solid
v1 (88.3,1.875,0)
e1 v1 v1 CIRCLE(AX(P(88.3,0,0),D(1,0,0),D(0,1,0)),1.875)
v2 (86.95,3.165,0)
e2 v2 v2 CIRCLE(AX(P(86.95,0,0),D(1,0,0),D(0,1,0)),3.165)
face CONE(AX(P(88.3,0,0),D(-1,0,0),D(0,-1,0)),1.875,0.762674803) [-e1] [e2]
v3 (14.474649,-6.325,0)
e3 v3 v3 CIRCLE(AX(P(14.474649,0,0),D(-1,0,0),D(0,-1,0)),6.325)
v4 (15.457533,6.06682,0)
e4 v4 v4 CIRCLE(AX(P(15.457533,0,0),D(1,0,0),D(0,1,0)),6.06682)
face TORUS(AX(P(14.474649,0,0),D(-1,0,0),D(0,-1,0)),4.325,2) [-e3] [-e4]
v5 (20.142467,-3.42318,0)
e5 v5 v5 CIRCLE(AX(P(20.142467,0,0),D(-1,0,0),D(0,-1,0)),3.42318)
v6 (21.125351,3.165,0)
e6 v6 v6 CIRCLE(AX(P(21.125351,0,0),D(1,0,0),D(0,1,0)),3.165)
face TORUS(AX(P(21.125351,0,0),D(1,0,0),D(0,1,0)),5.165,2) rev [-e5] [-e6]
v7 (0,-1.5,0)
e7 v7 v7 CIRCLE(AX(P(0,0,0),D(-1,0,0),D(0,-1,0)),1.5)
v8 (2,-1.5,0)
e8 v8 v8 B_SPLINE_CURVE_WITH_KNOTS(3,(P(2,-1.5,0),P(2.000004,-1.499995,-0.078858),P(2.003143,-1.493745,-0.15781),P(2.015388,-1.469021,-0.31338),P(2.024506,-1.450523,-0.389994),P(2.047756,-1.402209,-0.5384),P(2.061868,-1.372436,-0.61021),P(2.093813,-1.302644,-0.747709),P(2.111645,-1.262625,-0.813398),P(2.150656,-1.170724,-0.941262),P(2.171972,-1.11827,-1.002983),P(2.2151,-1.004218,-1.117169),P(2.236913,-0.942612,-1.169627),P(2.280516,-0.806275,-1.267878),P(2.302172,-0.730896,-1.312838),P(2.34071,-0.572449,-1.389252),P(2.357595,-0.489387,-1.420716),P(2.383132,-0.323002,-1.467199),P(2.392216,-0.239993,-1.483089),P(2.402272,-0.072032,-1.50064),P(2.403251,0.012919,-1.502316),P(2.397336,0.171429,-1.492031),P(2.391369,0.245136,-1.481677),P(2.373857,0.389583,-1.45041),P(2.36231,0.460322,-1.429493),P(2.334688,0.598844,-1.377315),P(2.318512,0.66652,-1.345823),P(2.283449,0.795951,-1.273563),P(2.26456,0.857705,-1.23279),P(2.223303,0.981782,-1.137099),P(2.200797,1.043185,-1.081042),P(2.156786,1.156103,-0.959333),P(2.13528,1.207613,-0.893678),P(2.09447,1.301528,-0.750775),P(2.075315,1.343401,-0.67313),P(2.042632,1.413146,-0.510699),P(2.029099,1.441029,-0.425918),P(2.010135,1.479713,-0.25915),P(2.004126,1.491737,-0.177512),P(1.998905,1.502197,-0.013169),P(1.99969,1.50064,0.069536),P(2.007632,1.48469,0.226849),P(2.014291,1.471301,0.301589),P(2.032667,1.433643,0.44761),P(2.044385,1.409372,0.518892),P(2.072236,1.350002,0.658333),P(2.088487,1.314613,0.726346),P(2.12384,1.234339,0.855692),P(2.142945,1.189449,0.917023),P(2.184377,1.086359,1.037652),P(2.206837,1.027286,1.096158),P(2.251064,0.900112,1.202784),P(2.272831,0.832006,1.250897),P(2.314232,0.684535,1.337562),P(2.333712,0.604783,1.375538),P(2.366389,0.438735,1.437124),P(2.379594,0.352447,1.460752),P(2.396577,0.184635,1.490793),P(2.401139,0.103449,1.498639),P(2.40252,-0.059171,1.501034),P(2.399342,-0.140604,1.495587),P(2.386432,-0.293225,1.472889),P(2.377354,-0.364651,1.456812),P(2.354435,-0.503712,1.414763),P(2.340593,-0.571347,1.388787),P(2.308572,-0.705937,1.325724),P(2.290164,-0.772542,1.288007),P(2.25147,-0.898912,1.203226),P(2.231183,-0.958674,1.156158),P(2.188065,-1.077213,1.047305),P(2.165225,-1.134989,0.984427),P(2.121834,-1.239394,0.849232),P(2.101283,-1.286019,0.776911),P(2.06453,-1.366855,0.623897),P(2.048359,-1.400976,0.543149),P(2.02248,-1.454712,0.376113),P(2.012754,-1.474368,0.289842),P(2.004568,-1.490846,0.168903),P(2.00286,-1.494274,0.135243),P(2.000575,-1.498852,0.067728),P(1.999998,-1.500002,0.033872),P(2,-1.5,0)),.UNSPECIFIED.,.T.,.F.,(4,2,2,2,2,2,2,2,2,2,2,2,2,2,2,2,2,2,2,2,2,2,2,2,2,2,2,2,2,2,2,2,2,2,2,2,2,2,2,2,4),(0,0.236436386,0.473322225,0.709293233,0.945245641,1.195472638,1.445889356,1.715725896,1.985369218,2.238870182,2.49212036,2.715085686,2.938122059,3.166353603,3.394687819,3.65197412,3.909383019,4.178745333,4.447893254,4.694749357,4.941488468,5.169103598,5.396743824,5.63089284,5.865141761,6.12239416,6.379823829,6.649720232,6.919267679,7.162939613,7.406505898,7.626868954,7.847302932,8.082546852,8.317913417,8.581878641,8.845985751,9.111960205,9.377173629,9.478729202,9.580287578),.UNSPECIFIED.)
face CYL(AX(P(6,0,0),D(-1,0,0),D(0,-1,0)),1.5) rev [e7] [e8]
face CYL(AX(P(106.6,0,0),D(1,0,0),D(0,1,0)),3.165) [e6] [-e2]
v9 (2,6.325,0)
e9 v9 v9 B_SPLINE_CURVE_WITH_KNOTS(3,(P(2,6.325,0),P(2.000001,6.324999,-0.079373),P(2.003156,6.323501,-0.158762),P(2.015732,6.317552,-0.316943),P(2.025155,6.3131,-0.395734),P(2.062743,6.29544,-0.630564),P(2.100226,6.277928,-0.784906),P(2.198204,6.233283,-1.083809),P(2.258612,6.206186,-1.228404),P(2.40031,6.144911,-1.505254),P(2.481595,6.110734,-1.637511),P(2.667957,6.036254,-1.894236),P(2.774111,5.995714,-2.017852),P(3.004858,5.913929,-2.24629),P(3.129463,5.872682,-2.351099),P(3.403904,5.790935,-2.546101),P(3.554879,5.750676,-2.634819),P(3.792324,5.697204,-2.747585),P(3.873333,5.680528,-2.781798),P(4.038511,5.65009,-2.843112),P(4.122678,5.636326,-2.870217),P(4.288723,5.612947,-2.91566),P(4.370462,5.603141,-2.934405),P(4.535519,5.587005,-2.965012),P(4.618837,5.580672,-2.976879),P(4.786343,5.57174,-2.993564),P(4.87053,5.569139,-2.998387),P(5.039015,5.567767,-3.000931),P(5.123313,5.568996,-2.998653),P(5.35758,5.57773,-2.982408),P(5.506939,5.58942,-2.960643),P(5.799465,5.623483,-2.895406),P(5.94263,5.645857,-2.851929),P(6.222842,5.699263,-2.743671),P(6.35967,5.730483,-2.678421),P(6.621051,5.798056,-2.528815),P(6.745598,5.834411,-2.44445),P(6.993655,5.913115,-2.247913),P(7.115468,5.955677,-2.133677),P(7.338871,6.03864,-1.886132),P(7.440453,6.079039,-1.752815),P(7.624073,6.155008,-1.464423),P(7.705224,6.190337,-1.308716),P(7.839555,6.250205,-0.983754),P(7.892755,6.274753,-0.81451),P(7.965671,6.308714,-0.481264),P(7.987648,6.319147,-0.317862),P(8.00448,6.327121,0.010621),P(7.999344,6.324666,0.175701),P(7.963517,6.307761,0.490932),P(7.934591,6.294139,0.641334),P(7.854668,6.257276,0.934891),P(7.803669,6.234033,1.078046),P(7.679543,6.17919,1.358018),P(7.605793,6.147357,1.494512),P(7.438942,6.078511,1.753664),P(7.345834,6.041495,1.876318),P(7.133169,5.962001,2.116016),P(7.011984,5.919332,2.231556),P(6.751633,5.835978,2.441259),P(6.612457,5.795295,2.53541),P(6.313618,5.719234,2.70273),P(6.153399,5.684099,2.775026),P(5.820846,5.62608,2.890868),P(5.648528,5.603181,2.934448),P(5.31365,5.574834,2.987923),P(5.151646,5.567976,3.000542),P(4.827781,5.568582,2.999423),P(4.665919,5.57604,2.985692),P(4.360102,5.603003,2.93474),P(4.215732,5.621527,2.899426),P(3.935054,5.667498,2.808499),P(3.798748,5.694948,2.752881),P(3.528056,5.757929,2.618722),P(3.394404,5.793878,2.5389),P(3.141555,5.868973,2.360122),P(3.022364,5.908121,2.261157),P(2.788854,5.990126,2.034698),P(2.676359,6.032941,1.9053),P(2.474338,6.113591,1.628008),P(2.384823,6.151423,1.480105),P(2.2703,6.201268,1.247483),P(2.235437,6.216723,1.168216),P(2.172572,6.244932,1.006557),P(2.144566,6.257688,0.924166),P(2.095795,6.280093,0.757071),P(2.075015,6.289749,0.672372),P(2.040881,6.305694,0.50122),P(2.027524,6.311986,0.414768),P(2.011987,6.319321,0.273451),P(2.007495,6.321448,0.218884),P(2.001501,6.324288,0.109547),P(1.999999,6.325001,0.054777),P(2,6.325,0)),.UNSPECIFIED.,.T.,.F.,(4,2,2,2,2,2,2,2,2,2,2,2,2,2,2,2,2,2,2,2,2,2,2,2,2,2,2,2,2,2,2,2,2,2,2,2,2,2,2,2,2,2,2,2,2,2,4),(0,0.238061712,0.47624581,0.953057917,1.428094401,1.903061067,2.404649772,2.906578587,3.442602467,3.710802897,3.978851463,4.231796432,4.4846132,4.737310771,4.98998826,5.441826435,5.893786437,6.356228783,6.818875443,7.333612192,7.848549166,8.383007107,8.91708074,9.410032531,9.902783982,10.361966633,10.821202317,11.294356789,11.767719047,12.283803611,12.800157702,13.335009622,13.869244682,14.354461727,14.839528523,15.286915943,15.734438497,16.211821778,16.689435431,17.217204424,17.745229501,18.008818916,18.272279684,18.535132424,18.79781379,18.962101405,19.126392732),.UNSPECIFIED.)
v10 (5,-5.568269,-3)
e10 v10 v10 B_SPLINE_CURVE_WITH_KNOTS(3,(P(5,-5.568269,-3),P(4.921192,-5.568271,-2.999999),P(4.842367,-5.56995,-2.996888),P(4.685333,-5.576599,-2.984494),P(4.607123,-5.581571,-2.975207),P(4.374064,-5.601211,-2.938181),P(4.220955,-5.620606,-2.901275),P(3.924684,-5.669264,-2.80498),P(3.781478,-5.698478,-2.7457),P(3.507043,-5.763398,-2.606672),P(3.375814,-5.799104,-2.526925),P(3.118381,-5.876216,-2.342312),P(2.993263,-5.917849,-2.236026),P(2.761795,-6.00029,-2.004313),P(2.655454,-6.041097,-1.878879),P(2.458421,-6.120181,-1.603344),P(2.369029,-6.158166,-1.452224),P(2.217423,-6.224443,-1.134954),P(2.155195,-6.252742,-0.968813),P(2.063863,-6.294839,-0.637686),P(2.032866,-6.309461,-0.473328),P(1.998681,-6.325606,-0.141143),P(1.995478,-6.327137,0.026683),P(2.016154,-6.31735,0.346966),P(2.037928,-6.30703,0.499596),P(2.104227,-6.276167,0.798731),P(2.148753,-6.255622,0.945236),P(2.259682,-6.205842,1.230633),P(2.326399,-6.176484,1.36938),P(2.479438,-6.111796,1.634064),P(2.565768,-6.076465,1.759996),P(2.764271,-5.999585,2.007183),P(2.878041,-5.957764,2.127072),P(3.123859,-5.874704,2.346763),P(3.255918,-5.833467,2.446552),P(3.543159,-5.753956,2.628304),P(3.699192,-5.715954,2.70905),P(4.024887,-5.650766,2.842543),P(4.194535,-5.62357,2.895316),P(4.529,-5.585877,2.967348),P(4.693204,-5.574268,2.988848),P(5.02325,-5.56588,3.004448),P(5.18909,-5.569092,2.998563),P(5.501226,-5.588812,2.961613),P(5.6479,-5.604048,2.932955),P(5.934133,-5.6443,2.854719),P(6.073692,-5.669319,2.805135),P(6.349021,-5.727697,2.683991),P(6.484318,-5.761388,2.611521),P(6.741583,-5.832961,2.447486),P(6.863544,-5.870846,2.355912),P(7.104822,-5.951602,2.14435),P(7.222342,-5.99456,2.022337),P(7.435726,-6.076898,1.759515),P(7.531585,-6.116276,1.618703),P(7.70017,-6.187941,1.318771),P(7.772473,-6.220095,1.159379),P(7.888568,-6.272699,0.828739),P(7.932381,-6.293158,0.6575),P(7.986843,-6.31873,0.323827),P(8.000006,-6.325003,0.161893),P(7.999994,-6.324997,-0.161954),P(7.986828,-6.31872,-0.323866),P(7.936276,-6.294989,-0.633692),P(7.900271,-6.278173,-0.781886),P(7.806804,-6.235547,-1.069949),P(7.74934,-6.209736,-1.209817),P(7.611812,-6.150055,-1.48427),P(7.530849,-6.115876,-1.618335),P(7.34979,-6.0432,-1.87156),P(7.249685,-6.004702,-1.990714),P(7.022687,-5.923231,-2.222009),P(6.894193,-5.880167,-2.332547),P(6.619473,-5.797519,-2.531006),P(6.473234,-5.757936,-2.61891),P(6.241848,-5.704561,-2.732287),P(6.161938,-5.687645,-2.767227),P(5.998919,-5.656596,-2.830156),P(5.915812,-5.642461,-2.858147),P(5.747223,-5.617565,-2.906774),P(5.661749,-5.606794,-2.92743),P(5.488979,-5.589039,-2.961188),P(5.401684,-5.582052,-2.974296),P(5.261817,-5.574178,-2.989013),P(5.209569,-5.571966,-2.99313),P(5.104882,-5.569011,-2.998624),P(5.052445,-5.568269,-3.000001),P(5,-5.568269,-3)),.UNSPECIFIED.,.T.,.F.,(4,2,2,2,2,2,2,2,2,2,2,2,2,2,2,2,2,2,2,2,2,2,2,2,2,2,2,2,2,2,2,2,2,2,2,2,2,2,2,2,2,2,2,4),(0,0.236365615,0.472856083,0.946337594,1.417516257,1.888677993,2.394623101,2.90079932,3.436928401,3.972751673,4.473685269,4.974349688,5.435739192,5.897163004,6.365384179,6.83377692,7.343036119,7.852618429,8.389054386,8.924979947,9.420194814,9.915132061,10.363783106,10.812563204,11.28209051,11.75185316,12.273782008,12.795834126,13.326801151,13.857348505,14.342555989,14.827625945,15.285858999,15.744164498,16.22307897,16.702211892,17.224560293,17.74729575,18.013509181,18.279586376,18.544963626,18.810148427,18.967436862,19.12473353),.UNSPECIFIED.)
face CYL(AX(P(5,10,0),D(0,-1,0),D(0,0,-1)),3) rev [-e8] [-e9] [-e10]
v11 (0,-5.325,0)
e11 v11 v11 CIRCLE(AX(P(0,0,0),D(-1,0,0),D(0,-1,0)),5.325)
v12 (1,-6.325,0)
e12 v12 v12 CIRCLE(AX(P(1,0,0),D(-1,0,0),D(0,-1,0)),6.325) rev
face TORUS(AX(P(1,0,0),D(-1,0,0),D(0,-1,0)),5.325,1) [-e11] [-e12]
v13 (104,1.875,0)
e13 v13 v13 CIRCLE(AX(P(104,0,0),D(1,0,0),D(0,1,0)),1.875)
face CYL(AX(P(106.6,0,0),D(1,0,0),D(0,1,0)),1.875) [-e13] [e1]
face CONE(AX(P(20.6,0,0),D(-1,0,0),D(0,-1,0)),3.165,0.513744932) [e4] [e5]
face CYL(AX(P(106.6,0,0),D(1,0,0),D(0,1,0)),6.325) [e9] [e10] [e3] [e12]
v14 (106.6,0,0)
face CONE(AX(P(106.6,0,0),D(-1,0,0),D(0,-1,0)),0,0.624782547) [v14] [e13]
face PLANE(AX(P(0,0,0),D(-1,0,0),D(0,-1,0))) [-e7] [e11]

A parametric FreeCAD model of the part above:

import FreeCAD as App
import Part
import Sketcher

V = App.Vector
Q = App.Units.Quantity


def edges_at(feature, points):
    """Names of the edges that pass closest to the given points."""
    edges = feature.Shape.Edges
    near = lambda p: min(range(len(edges)), key=lambda i: edges[i].distToShape(Part.Vertex(*p))[0])
    return sorted({f"Edge{near(p) + 1}" for p in points})

doc = App.newDocument("Part")
body = doc.addObject("PartDesign::Body", "Body")

# Sketch on XY plane
sketch1 = body.newObject("Sketcher::SketchObject", "Sketch")
sketch1.AttachmentSupport = (doc.getObject("XY_Plane"), [""])
sketch1.MapMode = "FlatFace"
sketch1.addGeometry([
    Part.LineSegment(V(0, 6.3, 0), V(0, 0, 0)),  # 0
    Part.LineSegment(V(0, 0, 0), V(106.6, 0, 0)),  # 1
    Part.LineSegment(V(106.6, 0, 0), V(104, 1.9, 0)),  # 2
    Part.LineSegment(V(104, 1.9, 0), V(88.3, 1.9, 0)),  # 3
    Part.LineSegment(V(88.3, 1.9, 0), V(87, 3.2, 0)),  # 4
    Part.LineSegment(V(87, 3.2, 0), V(20.6, 3.2, 0)),  # 5
    Part.LineSegment(V(20.6, 3.2, 0), V(15, 6.3, 0)),  # 6
    Part.LineSegment(V(15, 6.3, 0), V(0, 6.3, 0)),  # 7
], False)
sketch1.addConstraint([
    Sketcher.Constraint("Coincident", 0, 2, 1, 1),
    Sketcher.Constraint("Coincident", 1, 2, 2, 1),
    Sketcher.Constraint("Coincident", 2, 2, 3, 1),
    Sketcher.Constraint("Coincident", 3, 2, 4, 1),
    Sketcher.Constraint("Coincident", 4, 2, 5, 1),
    Sketcher.Constraint("Coincident", 5, 2, 6, 1),
    Sketcher.Constraint("Coincident", 6, 2, 7, 1),
    Sketcher.Constraint("Coincident", 7, 2, 0, 1),
    Sketcher.Constraint("Vertical", 0),
    Sketcher.Constraint("Horizontal", 1),
    Sketcher.Constraint("Horizontal", 3),
    Sketcher.Constraint("Horizontal", 5),
    Sketcher.Constraint("Horizontal", 7),
    Sketcher.Constraint("Coincident", 0, 2, -1, 1),
    Sketcher.Constraint("DistanceX", 7, 2, 7, 1, Q("15 mm")),
    Sketcher.Constraint("DistanceX", 1, 1, 1, 2, Q("106.6 mm")),
    Sketcher.Constraint("DistanceX", 3, 2, 3, 1, Q("15.7 mm")),
    Sketcher.Constraint("DistanceX", -1, 1, 2, 2, Q("104 mm")),
    Sketcher.Constraint("DistanceX", 5, 2, 1, 2, Q("86 mm")),
    Sketcher.Constraint("DistanceX", 5, 2, 5, 1, Q("66.35 mm")),
    Sketcher.Constraint("DistanceY", 0, 2, 0, 1, Q("6.325 mm")),
    Sketcher.Constraint("DistanceY", 3, 2, 4, 2, Q("1.29 mm")),
    Sketcher.Constraint("DistanceY", 5, 2, 6, 2, Q("3.16 mm")),
])
revolution = body.newObject("PartDesign::Revolution", "Revolution")
revolution.Profile = sketch1
revolution.ReferenceAxis = (sketch1, ["H_Axis"])
revolution.Angle = 360

# Sketch on XZ plane
sketch2 = body.newObject("Sketcher::SketchObject", "Sketch001")
sketch2.AttachmentSupport = (doc.getObject("XZ_Plane"), [""])
sketch2.MapMode = "FlatFace"
sketch2.addGeometry(Part.Circle(V(5, 0, 0), V(0, 0, 1), 3), False)
sketch2.addConstraint([
    Sketcher.Constraint("PointOnObject", 0, 3, -1),
    Sketcher.Constraint("Diameter", 0, Q("6 mm")),
    Sketcher.Constraint("DistanceX", -1, 1, 0, 3, Q("5 mm")),
])
pocket1 = body.newObject("PartDesign::Pocket", "Pocket")
pocket1.Profile = sketch2
pocket1.Type = "ThroughAll"
pocket1.Midplane = True
doc.recompute()

fillet = body.newObject("PartDesign::Fillet", "Fillet")
fillet.Base = (pocket1, edges_at(pocket1, [(0, -6.325, 0)]))
fillet.Radius = 1
doc.recompute()

fillet2 = body.newObject("PartDesign::Fillet", "Fillet001")
fillet2.Base = (fillet, edges_at(fillet, [(15, -6.325, 0), (20.6, -3.165, 0)]))
fillet2.Radius = 2

# Sketch on YZ plane
sketch3 = body.newObject("Sketcher::SketchObject", "Sketch002")
sketch3.AttachmentSupport = (doc.getObject("YZ_Plane"), [""])
sketch3.MapMode = "FlatFace"
sketch3.addGeometry(Part.Circle(V(0, 0, 0), V(0, 0, 1), 1.5), False)
sketch3.addConstraint([
    Sketcher.Constraint("Coincident", 0, 3, -1, 1),
    Sketcher.Constraint("Diameter", 0, Q("3 mm")),
])
pocket2 = body.newObject("PartDesign::Pocket", "Pocket001")
pocket2.Profile = sketch3
pocket2.Length = 6
pocket2.Reversed = True

doc.recompute()
